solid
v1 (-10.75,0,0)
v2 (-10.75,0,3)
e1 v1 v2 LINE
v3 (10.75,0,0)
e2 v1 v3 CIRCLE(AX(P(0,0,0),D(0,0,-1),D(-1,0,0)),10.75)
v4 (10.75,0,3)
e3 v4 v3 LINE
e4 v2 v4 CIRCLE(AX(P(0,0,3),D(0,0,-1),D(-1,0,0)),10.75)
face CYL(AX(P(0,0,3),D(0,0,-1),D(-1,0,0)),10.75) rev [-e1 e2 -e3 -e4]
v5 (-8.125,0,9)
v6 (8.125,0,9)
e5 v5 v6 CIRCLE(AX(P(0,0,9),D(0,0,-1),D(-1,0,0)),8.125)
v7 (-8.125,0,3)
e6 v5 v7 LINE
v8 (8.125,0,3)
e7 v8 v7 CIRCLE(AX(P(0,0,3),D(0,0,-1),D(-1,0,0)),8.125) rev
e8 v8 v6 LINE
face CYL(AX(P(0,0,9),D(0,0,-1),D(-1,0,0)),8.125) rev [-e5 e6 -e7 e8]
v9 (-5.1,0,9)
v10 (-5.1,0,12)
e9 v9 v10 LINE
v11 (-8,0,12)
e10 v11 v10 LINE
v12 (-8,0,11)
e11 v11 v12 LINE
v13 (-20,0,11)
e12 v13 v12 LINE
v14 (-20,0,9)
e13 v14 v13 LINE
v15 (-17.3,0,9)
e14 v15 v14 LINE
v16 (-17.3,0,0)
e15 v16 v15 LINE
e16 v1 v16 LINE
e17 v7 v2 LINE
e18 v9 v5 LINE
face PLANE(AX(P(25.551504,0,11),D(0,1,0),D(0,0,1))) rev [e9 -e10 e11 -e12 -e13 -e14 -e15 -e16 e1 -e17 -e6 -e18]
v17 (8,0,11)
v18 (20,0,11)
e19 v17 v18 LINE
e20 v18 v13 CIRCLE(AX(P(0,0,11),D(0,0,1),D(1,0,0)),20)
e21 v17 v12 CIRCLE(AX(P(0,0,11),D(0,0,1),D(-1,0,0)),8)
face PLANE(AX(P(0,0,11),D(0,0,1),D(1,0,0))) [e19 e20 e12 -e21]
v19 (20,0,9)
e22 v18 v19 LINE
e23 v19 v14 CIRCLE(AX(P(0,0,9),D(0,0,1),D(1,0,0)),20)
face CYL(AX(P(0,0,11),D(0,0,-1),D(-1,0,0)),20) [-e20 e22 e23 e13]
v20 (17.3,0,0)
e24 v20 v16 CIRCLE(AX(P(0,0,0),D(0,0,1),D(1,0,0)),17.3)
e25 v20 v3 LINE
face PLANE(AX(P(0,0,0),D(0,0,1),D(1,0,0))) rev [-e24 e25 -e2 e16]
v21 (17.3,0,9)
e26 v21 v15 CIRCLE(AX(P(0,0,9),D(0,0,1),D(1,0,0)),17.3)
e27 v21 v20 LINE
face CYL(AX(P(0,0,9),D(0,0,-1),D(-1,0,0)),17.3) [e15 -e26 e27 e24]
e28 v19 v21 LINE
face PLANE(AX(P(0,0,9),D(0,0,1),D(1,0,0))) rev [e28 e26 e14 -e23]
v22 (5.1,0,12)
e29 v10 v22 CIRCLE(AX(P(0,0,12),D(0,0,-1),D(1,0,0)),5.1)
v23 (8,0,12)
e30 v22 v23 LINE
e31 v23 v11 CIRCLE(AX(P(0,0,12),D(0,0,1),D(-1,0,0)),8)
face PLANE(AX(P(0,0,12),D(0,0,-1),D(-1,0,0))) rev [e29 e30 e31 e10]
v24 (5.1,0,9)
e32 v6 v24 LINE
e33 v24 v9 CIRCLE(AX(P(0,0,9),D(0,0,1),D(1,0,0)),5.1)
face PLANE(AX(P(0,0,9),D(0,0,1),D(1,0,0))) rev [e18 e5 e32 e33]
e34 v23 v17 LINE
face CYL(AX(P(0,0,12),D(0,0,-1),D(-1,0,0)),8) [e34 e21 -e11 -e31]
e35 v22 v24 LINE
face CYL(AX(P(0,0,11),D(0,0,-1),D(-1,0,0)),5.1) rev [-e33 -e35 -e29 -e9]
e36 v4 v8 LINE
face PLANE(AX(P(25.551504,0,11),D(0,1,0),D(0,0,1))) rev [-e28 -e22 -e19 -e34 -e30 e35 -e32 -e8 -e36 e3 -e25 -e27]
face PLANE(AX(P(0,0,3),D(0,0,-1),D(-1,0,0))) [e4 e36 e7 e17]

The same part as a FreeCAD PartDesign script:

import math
import FreeCAD as App
import Part
import Sketcher

V = App.Vector
Q = App.Units.Quantity

doc = App.newDocument("Part")
params = doc.addObject("Spreadsheet::Sheet", "Params")
for row, (alias, value) in enumerate([
    ("sketch1_diameter", "34.6 mm"),
    ("pad1_length", "9 mm"),
    ("sketch2_diameter", "10.2 mm"),
    ("pocket1_length", "10 mm"),
    ("sketch3_diameter", "16.25 mm"),
    ("pocket2_length", "9 mm"),
    ("sketch4_diameter", "40 mm"),
    ("sketch4_diameter2", "10.2 mm"),
    ("pad2_length", "2 mm"),
    ("sketch6_radius", "8 mm"),
    ("sketch6_radius2", "5.1 mm"),
    ("pad3_length", "1 mm"),
    ("sketch7_diameter", "21.5 mm"),
    ("pocket4_length", "3 mm"),
], start=1):
    params.set(f"A{row}", alias)
    params.set(f"B{row}", "=" + value)
    params.setAlias(f"B{row}", alias)

body = doc.addObject("PartDesign::Body", "Body")

# Sketch on XY plane
sketch1 = body.newObject("Sketcher::SketchObject", "Sketch")
sketch1.AttachmentSupport = (doc.getObject("XY_Plane"), [""])
sketch1.MapMode = "FlatFace"
sketch1.addGeometry(Part.Circle(V(0, 0, 0), V(0, 0, 1), 17), False)
sketch1.addConstraint(Sketcher.Constraint("Coincident", 0, 3, -1, 1))
sketch1.addConstraint(Sketcher.Constraint("Diameter", 0, Q("34.6 mm")))
sketch1.setExpression("Constraints[1]", "Params.sketch1_diameter")
pad1 = body.newObject("PartDesign::Pad", "Pad")
pad1.Profile = sketch1
pad1.setExpression("Length", "Params.pad1_length")

# Sketch on XY plane
sketch2 = body.newObject("Sketcher::SketchObject", "Sketch001")
sketch2.AttachmentSupport = (doc.getObject("XY_Plane"), [""])
sketch2.MapMode = "FlatFace"
sketch2.AttachmentOffset = App.Placement(V(0, 0, 9), App.Rotation())
sketch2.addGeometry(Part.Circle(V(0, 0, 0), V(0, 0, 1), 5), False)
sketch2.addConstraint(Sketcher.Constraint("Coincident", 0, 3, -1, 1))
sketch2.addConstraint(Sketcher.Constraint("Diameter", 0, Q("10.2 mm")))
sketch2.setExpression("Constraints[1]", "Params.sketch2_diameter")
pocket1 = body.newObject("PartDesign::Pocket", "Pocket")
pocket1.Profile = sketch2
pocket1.setExpression("Length", "Params.pocket1_length")

# Sketch on XY plane
sketch3 = body.newObject("Sketcher::SketchObject", "Sketch002")
sketch3.AttachmentSupport = (doc.getObject("XY_Plane"), [""])
sketch3.MapMode = "FlatFace"
sketch3.addGeometry(Part.Circle(V(0, 0, 0), V(0, 0, 1), 8), False)
sketch3.addConstraint(Sketcher.Constraint("Coincident", 0, 3, -1, 1))
sketch3.addConstraint(Sketcher.Constraint("Diameter", 0, Q("16.25 mm")))
sketch3.setExpression("Constraints[1]", "Params.sketch3_diameter")
pocket2 = body.newObject("PartDesign::Pocket", "Pocket001")
pocket2.Profile = sketch3
pocket2.setExpression("Length", "Params.pocket2_length")
pocket2.Reversed = True

# Sketch on XY plane
sketch4 = body.newObject("Sketcher::SketchObject", "Sketch003")
sketch4.AttachmentSupport = (doc.getObject("XY_Plane"), [""])
sketch4.MapMode = "FlatFace"
sketch4.AttachmentOffset = App.Placement(V(0, 0, 9), App.Rotation())
sketch4.addGeometry(Part.Circle(V(0, 0, 0), V(0, 0, 1), 20), False)
sketch4.addGeometry(Part.Circle(V(0, 0, 0), V(0, 0, 1), 5), False)
sketch4.addConstraint(Sketcher.Constraint("Coincident", 0, 3, -1, 1))
sketch4.addConstraint(Sketcher.Constraint("Coincident", 1, 3, -1, 1))
sketch4.addConstraint(Sketcher.Constraint("Diameter", 0, Q("40 mm")))
sketch4.addConstraint(Sketcher.Constraint("Diameter", 1, Q("10.2 mm")))
sketch4.setExpression("Constraints[2]", "Params.sketch4_diameter")
sketch4.setExpression("Constraints[3]", "Params.sketch4_diameter2")
pad2 = body.newObject("PartDesign::Pad", "Pad001")
pad2.Profile = sketch4
pad2.setExpression("Length", "Params.pad2_length")

# Sketch on XY plane
sketch5 = body.newObject("Sketcher::SketchObject", "Sketch004")
sketch5.AttachmentSupport = (doc.getObject("XY_Plane"), [""])
sketch5.MapMode = "FlatFace"
sketch5.addGeometry(Part.LineSegment(V(26, 0, 0), V(26, -23, 0)), False)
sketch5.addGeometry(Part.LineSegment(V(26, -23, 0), V(-26, -23, 0)), False)
sketch5.addGeometry(Part.LineSegment(V(-26, -23, 0), V(-26, 0, 0)), False)
sketch5.addGeometry(Part.LineSegment(V(-26, 0, 0), V(26, 0, 0)), False)
sketch5.addConstraint(Sketcher.Constraint("Coincident", 0, 2, 1, 1))
sketch5.addConstraint(Sketcher.Constraint("Coincident", 1, 2, 2, 1))
sketch5.addConstraint(Sketcher.Constraint("Coincident", 2, 2, 3, 1))
sketch5.addConstraint(Sketcher.Constraint("Coincident", 3, 2, 0, 1))
sketch5.addConstraint(Sketcher.Constraint("Vertical", 0))
sketch5.addConstraint(Sketcher.Constraint("Horizontal", 1))
sketch5.addConstraint(Sketcher.Constraint("Vertical", 2))
sketch5.addConstraint(Sketcher.Constraint("Horizontal", 3))
sketch5.addConstraint(Sketcher.Constraint("PointOnObject", 2, 2, -1))
sketch5.addConstraint(Sketcher.Constraint("DistanceX", 1, 2, 1, 1, Q("52.02135 mm")))
sketch5.addConstraint(Sketcher.Constraint("DistanceY", 0, 2, 0, 1, Q("22.661429 mm")))
sketch5.addConstraint(Sketcher.Constraint("DistanceX", -1, 1, 0, 2, Q("25.551504 mm")))
pocket3 = body.newObject("PartDesign::Pocket", "Pocket002")
pocket3.Profile = sketch5
pocket3.Type = "ThroughAll"
pocket3.Midplane = True

# Sketch on XY plane
sketch6 = body.newObject("Sketcher::SketchObject", "Sketch005")
sketch6.AttachmentSupport = (doc.getObject("XY_Plane"), [""])
sketch6.MapMode = "FlatFace"
sketch6.AttachmentOffset = App.Placement(V(0, 0, 11), App.Rotation())
sketch6.addGeometry(Part.LineSegment(V(-8, 0, 0), V(-5.1, 0, 0)), False)
sketch6.addGeometry(Part.ArcOfCircle(Part.Circle(V(0, 0, 0), V(0, 0, 1), 5.1), math.radians(0), math.radians(180)), False)
sketch6.addGeometry(Part.LineSegment(V(5.1, 0, 0), V(8, 0, 0)), False)
sketch6.addGeometry(Part.ArcOfCircle(Part.Circle(V(0, 0, 0), V(0, 0, 1), 8), math.radians(0), math.radians(180)), False)
sketch6.addConstraint(Sketcher.Constraint("Coincident", 0, 2, 1, 2))
sketch6.addConstraint(Sketcher.Constraint("Coincident", 1, 1, 2, 1))
sketch6.addConstraint(Sketcher.Constraint("Coincident", 2, 2, 3, 1))
sketch6.addConstraint(Sketcher.Constraint("Coincident", 3, 2, 0, 1))
sketch6.addConstraint(Sketcher.Constraint("Horizontal", 0))
sketch6.addConstraint(Sketcher.Constraint("Horizontal", 2))
sketch6.addConstraint(Sketcher.Constraint("Coincident", 1, 3, -1, 1))
sketch6.addConstraint(Sketcher.Constraint("Coincident", 3, 3, -1, 1))
sketch6.addConstraint(Sketcher.Constraint("PointOnObject", 0, 2, -1))
sketch6.addConstraint(Sketcher.Constraint("PointOnObject", 1, 1, -1))
sketch6.addConstraint(Sketcher.Constraint("Radius", 3, Q("8 mm")))
sketch6.addConstraint(Sketcher.Constraint("Radius", 1, Q("5.1 mm")))
sketch6.setExpression("Constraints[10]", "Params.sketch6_radius")
sketch6.setExpression("Constraints[11]", "Params.sketch6_radius2")
pad3 = body.newObject("PartDesign::Pad", "Pad002")
pad3.Profile = sketch6
pad3.setExpression("Length", "Params.pad3_length")

# Sketch on XY plane
sketch7 = body.newObject("Sketcher::SketchObject", "Sketch006")
sketch7.AttachmentSupport = (doc.getObject("XY_Plane"), [""])
sketch7.MapMode = "FlatFace"
sketch7.addGeometry(Part.Circle(V(0, 0, 0), V(0, 0, 1), 11), False)
sketch7.addConstraint(Sketcher.Constraint("Coincident", 0, 3, -1, 1))
sketch7.addConstraint(Sketcher.Constraint("Diameter", 0, Q("21.5 mm")))
sketch7.setExpression("Constraints[1]", "Params.sketch7_diameter")
pocket4 = body.newObject("PartDesign::Pocket", "Pocket003")
pocket4.Profile = sketch7
pocket4.setExpression("Length", "Params.pocket4_length")
pocket4.Reversed = True

doc.recompute()
